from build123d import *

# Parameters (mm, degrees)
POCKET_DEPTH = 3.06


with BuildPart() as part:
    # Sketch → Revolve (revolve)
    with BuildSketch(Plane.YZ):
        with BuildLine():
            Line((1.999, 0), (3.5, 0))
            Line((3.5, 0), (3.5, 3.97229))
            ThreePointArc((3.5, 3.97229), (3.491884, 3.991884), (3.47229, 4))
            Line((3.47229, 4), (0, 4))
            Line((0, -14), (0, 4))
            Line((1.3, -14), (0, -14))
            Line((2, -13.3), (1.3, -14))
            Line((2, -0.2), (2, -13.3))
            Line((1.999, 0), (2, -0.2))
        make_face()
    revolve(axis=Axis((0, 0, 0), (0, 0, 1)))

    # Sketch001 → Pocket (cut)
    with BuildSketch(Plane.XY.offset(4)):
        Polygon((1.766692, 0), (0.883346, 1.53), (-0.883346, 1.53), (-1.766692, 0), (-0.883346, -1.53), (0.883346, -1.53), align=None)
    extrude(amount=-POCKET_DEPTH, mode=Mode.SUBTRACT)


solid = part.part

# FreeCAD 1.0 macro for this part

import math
import FreeCAD as App
import Part
import Sketcher

V = App.Vector
Q = App.Units.Quantity

doc = App.newDocument("Part")
params = doc.addObject("Spreadsheet::Sheet", "Params")
for row, (alias, value) in enumerate([
    ("sketch1_height", "18 mm"),
    ("sketch1_width", "1.3 mm"),
    ("sketch1_height2", "13.1 mm"),
    ("revolution_angle", "360 deg"),
    ("pocket1_length", "3.06 mm"),
], start=1):
    params.set(f"A{row}", alias)
    params.set(f"B{row}", "=" + value)
    params.setAlias(f"B{row}", alias)

body = doc.addObject("PartDesign::Body", "Body")

# Sketch on YZ plane
sketch1 = body.newObject("Sketcher::SketchObject", "Sketch")
sketch1.AttachmentSupport = (doc.getObject("YZ_Plane"), [""])
sketch1.MapMode = "FlatFace"
sketch1.addGeometry([
    Part.LineSegment(V(1.999, 0, 0), V(3.5, 0, 0)),  # 0
    Part.LineSegment(V(3.5, 0, 0), V(3.5, 3.97229, 0)),  # 1
    Part.ArcOfCircle(Part.Circle(V(3.47229, 3.97229, 0), V(0, 0, 1), 0.02771), math.radians(-0.000502), math.radians(90.000502)),  # 2
    Part.LineSegment(V(3.47229, 4, 0), V(0, 4, 0)),  # 3
    Part.LineSegment(V(0, 4, 0), V(0, -14, 0)),  # 4
    Part.LineSegment(V(0, -14, 0), V(1.3, -14, 0)),  # 5
    Part.LineSegment(V(1.3, -14, 0), V(2, -13.3, 0)),  # 6
    Part.LineSegment(V(2, -13.3, 0), V(2, -0.2, 0)),  # 7
    Part.LineSegment(V(2, -0.2, 0), V(1.999, 0, 0)),  # 8
], False)
sketch1.addConstraint([
    Sketcher.Constraint("Coincident", 0, 2, 1, 1),
    Sketcher.Constraint("Coincident", 1, 2, 2, 1),
    Sketcher.Constraint("Coincident", 2, 2, 3, 1),
    Sketcher.Constraint("Coincident", 3, 2, 4, 1),
    Sketcher.Constraint("Coincident", 4, 2, 5, 1),
    Sketcher.Constraint("Coincident", 5, 2, 6, 1),
    Sketcher.Constraint("Coincident", 6, 2, 7, 1),
    Sketcher.Constraint("Coincident", 7, 2, 8, 1),
    Sketcher.Constraint("Coincident", 8, 2, 0, 1),
    Sketcher.Constraint("Horizontal", 0),
    Sketcher.Constraint("Vertical", 1),
    Sketcher.Constraint("Horizontal", 3),
    Sketcher.Constraint("Vertical", 4),
    Sketcher.Constraint("Horizontal", 5),
    Sketcher.Constraint("Vertical", 7),
    Sketcher.Constraint("PointOnObject", 0, 2, -1),
    Sketcher.Constraint("PointOnObject", 3, 2, -2),
    Sketcher.Constraint("Horizontal", 2, 3, 1, 2),
    Sketcher.Constraint("DistanceY", 4, 2, 4, 1, Q("18 mm")),
    Sketcher.Constraint("Angle", 6, Q("45 deg")),
    Sketcher.Constraint("DistanceX", 5, 1, 5, 2, Q("1.3 mm")),
    Sketcher.Constraint("DistanceY", 7, 1, 7, 2, Q("13.1 mm")),
    Sketcher.Constraint("DistanceY", -1, 1, 2, 2, Q("4 mm")),
    Sketcher.Constraint("DistanceX", -1, 1, 6, 2, Q("2 mm")),
    Sketcher.Constraint("DistanceX", -1, 1, 0, 2, Q("3.5 mm")),
    Sketcher.Constraint("DistanceX", 0, 1, 0, 2, Q("1.501 mm")),
    Sketcher.Constraint("Radius", 2, Q("0.02771 mm")),
    Sketcher.Constraint("DistanceX", 3, 2, 3, 1, Q("3.47229 mm")),
])
sketch1.setExpression("Constraints[18]", "Params.sketch1_height")
sketch1.setExpression("Constraints[20]", "Params.sketch1_width")
sketch1.setExpression("Constraints[21]", "Params.sketch1_height2")
revolution = body.newObject("PartDesign::Revolution", "Revolution")
revolution.Profile = sketch1
revolution.ReferenceAxis = (sketch1, ["V_Axis"])
revolution.setExpression("Angle", "Params.revolution_angle")

# Sketch on XY plane
sketch2 = body.newObject("Sketcher::SketchObject", "Sketch001")
sketch2.AttachmentSupport = (doc.getObject("XY_Plane"), [""])
sketch2.MapMode = "FlatFace"
sketch2.AttachmentOffset = App.Placement(V(0, 0, 4), App.Rotation())
sketch2.addGeometry([
    Part.LineSegment(V(1.766692, 0, 0), V(0.883346, 1.53, 0)),  # 0
    Part.LineSegment(V(0.883346, 1.53, 0), V(-0.883346, 1.53, 0)),  # 1
    Part.LineSegment(V(-0.883346, 1.53, 0), V(-1.766692, 0, 0)),  # 2
    Part.LineSegment(V(-1.766692, 0, 0), V(-0.883346, -1.53, 0)),  # 3
    Part.LineSegment(V(-0.883346, -1.53, 0), V(0.883346, -1.53, 0)),  # 4
    Part.LineSegment(V(0.883346, -1.53, 0), V(1.766692, 0, 0)),  # 5
], False)
sketch2.addConstraint([
    Sketcher.Constraint("Coincident", 0, 2, 1, 1),
    Sketcher.Constraint("Coincident", 1, 2, 2, 1),
    Sketcher.Constraint("Coincident", 2, 2, 3, 1),
    Sketcher.Constraint("Coincident", 3, 2, 4, 1),
    Sketcher.Constraint("Coincident", 4, 2, 5, 1),
    Sketcher.Constraint("Coincident", 5, 2, 0, 1),
    Sketcher.Constraint("Horizontal", 1),
    Sketcher.Constraint("Horizontal", 4),
    Sketcher.Constraint("Symmetric", 0, 2, 3, 2, -1, 1),
    Sketcher.Constraint("Symmetric", 2, 2, 5, 2, -1, 1),
    Sketcher.Constraint("PointOnObject", 2, 2, -1),
    Sketcher.Constraint("Parallel", 2, 5),
    Sketcher.Constraint("Vertical", 1, 2, 3, 2),
    Sketcher.Constraint("Angle", 0, Q("120.000002 deg")),
    Sketcher.Constraint("DistanceY", -1, 1, 0, 2, Q("1.53 mm")),
    Sketcher.Constraint("DistanceX", 1, 2, 1, 1, Q("1.766692 mm")),
])
pocket1 = body.newObject("PartDesign::Pocket", "Pocket")
pocket1.Profile = sketch2
pocket1.setExpression("Length", "Params.pocket1_length")

doc.recompute()
